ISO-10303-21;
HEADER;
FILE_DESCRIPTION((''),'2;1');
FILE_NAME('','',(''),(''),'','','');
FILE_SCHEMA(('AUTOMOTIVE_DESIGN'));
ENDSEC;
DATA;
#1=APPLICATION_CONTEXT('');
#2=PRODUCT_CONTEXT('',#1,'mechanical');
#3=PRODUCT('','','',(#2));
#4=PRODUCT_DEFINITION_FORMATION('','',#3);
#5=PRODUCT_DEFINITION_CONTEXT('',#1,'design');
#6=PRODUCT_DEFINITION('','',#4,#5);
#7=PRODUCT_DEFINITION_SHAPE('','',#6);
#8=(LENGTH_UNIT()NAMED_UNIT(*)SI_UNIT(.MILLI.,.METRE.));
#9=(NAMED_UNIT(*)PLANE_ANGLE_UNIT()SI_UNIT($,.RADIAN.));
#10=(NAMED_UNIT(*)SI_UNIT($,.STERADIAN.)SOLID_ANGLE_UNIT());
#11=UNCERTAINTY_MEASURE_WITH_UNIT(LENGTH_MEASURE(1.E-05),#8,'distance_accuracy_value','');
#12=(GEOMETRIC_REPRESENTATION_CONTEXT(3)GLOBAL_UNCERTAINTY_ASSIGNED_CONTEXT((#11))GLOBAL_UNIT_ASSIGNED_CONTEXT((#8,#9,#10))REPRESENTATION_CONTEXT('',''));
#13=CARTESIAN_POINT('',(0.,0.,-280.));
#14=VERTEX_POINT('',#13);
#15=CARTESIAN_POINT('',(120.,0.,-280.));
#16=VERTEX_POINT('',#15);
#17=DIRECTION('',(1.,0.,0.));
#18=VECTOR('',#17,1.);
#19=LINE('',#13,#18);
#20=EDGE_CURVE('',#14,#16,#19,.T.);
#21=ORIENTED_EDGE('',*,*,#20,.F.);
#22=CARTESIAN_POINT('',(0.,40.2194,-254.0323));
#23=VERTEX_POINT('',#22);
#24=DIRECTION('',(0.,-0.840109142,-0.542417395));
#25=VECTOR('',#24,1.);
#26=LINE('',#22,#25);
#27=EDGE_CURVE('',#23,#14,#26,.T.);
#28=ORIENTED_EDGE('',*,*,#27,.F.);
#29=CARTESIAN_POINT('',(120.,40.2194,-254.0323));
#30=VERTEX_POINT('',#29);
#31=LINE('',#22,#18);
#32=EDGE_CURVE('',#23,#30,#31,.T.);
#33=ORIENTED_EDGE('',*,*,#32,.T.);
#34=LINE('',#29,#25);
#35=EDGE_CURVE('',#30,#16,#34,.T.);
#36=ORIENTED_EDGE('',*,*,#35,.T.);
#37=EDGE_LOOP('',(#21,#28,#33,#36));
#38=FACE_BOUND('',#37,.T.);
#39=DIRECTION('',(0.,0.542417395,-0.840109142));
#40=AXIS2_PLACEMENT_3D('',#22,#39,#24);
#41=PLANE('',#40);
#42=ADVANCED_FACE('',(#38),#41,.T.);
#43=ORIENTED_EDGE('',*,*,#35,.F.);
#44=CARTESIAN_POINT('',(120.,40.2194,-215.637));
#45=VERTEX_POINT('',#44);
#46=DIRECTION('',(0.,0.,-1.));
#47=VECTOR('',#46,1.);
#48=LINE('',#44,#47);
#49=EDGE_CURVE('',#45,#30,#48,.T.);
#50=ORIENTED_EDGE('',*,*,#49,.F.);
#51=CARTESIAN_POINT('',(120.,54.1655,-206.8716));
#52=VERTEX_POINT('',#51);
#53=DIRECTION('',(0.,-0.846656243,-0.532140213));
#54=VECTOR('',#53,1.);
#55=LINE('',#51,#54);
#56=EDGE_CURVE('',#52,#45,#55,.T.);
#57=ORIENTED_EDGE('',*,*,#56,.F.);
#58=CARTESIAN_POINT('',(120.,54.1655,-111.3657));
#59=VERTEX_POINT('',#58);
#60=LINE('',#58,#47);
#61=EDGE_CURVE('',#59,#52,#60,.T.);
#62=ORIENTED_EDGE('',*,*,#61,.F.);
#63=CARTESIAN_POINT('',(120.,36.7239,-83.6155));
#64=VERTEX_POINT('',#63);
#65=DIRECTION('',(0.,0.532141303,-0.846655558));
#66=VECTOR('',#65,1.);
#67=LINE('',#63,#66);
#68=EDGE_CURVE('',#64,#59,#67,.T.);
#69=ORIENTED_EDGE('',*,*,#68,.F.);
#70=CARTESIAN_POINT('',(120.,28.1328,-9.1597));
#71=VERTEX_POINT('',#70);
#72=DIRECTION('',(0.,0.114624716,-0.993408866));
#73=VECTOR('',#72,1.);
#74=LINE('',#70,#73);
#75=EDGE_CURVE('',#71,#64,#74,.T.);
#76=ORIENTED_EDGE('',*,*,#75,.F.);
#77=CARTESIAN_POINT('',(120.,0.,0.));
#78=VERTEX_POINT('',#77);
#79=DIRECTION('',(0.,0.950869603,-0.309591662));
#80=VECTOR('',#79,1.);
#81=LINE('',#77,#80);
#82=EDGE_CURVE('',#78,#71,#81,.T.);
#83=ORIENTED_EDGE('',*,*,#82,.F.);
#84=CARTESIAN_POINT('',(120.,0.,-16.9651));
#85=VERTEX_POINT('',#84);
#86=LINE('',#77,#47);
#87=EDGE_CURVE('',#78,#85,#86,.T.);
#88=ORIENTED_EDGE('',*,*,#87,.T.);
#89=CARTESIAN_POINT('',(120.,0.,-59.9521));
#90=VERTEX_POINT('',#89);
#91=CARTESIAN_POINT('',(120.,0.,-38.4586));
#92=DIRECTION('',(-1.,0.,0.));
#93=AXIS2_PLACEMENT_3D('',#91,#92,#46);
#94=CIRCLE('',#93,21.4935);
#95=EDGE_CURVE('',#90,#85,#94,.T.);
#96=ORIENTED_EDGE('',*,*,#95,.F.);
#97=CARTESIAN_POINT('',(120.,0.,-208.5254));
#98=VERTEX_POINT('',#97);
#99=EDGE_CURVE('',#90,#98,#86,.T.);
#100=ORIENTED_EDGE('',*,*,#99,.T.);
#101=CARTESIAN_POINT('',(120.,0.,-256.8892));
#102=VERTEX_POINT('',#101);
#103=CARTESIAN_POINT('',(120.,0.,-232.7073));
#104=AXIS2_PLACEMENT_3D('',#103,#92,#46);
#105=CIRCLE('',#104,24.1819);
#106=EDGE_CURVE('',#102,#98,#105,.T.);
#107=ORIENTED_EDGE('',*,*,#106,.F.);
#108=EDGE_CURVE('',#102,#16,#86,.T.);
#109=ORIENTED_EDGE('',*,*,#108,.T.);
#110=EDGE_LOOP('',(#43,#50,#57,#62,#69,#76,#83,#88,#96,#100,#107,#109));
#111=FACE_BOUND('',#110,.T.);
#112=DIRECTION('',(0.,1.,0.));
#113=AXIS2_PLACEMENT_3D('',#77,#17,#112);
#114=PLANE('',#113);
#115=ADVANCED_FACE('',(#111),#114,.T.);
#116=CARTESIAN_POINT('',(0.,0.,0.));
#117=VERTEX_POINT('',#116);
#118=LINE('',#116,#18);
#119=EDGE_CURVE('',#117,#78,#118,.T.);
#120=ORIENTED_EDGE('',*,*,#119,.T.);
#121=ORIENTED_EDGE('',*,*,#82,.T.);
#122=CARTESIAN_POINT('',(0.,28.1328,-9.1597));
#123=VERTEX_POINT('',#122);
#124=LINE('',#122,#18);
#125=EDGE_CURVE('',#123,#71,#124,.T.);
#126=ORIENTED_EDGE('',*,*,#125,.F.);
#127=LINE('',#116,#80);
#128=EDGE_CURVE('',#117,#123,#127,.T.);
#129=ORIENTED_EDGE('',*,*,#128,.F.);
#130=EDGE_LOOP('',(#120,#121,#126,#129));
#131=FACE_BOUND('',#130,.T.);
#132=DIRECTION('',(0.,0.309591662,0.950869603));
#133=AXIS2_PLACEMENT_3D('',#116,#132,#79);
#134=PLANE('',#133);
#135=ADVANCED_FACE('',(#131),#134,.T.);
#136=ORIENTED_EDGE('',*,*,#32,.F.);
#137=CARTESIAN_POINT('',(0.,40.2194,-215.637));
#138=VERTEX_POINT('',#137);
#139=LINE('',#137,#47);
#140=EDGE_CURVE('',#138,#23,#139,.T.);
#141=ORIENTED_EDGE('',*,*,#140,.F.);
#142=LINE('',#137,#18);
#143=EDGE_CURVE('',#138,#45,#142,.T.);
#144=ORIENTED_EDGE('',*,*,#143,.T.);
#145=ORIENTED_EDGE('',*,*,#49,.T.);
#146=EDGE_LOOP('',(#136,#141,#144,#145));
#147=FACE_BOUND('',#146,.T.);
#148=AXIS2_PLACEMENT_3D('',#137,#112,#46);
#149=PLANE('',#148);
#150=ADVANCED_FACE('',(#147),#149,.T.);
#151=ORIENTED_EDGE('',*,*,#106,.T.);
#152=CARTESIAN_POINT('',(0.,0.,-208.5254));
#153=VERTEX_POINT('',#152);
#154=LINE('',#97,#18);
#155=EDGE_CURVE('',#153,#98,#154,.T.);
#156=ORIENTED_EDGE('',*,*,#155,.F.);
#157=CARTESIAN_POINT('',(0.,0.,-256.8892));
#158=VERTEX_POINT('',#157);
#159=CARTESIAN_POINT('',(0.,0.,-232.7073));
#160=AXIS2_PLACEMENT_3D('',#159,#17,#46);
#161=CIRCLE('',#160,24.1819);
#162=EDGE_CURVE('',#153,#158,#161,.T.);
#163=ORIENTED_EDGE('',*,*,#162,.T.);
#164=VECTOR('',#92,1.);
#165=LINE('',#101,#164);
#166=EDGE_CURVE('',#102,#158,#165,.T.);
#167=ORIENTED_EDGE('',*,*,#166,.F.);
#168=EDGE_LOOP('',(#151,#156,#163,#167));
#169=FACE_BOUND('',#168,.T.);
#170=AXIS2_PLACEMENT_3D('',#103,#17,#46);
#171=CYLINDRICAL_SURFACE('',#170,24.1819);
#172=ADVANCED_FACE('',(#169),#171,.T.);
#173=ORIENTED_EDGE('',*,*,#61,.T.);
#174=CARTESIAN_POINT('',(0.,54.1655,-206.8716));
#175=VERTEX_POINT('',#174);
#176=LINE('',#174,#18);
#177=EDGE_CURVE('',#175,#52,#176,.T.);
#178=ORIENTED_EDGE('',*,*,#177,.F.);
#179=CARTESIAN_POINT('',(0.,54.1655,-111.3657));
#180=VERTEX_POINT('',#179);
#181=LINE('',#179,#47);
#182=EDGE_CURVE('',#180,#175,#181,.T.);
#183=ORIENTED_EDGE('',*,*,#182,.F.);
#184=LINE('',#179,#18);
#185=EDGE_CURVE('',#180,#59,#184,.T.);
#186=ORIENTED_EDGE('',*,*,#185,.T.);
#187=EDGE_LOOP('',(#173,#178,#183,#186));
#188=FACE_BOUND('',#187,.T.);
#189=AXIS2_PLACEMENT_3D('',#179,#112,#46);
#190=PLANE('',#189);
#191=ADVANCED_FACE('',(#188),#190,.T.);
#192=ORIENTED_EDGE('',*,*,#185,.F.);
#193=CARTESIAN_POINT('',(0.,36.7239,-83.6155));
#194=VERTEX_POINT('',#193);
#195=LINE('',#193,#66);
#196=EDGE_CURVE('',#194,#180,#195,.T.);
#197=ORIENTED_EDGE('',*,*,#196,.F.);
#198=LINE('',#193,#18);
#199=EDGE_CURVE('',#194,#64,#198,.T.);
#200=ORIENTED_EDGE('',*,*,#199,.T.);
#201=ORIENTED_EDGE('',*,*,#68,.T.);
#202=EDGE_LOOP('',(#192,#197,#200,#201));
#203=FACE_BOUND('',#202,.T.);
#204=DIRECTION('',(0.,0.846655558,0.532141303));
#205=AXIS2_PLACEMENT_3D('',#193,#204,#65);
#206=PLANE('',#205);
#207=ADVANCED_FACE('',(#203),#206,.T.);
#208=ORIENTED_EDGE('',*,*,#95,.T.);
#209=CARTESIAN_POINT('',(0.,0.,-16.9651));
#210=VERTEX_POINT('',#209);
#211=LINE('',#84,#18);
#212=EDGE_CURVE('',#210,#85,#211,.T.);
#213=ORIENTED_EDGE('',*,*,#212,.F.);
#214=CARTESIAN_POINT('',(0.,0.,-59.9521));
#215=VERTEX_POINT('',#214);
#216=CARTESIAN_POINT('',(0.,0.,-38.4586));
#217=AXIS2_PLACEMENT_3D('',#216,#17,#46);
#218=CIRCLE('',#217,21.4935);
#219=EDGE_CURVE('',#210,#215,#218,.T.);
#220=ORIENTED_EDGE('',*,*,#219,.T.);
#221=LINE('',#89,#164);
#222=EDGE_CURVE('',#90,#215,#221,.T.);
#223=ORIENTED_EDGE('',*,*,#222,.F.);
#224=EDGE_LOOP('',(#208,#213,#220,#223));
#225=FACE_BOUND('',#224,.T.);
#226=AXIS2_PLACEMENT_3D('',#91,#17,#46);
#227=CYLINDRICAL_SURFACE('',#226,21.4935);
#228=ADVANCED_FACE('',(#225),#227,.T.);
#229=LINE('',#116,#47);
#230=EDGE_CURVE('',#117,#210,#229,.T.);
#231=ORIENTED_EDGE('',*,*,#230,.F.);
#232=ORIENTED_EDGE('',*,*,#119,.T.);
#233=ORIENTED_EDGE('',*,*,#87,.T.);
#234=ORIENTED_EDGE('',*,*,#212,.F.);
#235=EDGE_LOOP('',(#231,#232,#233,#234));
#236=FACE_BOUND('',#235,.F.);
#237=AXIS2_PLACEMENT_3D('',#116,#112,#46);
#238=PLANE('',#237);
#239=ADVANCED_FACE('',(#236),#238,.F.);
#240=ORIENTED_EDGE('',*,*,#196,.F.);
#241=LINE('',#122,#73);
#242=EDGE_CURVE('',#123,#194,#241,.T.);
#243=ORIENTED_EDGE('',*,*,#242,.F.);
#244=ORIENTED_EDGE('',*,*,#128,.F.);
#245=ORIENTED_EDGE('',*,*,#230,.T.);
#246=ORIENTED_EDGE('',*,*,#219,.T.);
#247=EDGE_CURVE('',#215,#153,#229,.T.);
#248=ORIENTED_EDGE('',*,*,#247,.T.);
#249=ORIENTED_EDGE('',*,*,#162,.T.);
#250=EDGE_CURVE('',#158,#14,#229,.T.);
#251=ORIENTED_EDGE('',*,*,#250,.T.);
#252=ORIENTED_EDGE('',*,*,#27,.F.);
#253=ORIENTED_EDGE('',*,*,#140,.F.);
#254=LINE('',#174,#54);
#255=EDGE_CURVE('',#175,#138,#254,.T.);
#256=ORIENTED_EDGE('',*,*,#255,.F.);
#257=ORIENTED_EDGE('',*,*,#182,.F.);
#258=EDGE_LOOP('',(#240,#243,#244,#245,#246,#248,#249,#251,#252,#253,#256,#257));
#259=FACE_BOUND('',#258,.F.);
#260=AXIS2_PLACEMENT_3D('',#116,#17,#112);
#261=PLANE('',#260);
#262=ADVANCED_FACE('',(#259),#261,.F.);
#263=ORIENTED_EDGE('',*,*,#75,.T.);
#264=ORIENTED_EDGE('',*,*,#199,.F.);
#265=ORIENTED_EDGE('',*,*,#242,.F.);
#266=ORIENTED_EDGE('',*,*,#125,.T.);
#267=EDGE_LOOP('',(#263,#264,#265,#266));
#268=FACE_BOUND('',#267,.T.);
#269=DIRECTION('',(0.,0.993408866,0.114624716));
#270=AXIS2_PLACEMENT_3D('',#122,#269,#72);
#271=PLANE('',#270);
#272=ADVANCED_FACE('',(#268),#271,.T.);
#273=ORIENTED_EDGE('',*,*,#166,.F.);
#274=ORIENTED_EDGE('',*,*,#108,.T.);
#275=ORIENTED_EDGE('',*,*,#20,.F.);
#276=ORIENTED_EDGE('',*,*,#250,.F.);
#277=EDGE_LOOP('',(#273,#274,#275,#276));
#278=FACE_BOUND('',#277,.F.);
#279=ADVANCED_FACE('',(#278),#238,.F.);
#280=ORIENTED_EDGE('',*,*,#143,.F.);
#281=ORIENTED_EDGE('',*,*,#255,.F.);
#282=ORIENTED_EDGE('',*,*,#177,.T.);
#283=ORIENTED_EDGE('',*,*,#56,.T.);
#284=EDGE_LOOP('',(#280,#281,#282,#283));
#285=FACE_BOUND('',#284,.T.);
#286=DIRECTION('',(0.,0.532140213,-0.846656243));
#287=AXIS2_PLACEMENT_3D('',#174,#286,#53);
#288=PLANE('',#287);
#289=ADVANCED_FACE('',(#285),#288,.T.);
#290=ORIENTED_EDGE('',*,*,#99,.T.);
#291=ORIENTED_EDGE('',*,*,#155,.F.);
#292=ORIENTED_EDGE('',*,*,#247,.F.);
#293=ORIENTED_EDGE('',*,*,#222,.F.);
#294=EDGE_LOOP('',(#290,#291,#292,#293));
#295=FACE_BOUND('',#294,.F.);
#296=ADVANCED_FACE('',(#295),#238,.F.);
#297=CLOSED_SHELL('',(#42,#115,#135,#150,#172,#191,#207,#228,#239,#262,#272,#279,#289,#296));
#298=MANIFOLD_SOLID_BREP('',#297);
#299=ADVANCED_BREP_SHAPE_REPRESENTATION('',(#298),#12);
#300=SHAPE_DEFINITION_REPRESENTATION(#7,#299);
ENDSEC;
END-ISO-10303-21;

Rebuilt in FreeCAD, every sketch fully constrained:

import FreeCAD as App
import Part
import Sketcher
Q = App.Units.Quantity


def add_polygon(sketch, points):
    """Adds a closed chain of lines whose ends are joined by coincident constraints."""
    first, n = sketch.GeometryCount, len(points)
    for a, b in zip(points, points[1:] + points[:1]):
        sketch.addGeometry(Part.LineSegment(App.Vector(*a, 0), App.Vector(*b, 0)), False)
    for i in range(n):
        sketch.addConstraint(Sketcher.Constraint("Coincident", first + i, 2, first + (i + 1) % n, 1))

doc = App.newDocument("Part")
params = doc.addObject("Spreadsheet::Sheet", "Params")
for row, (alias, value) in enumerate([
    ("sketch1_height", "280 mm"),
    ("pad1_length", "120 mm"),
    ("pad2_length", "120 mm"),
], start=1):
    params.set(f"A{row}", alias)
    params.set(f"B{row}", "=" + value)
    params.setAlias(f"B{row}", alias)

body = doc.addObject("PartDesign::Body", "Body")

# Sketch on YZ plane
sketch1 = body.newObject("Sketcher::SketchObject", "Sketch")
sketch1.AttachmentSupport = (doc.getObject("YZ_Plane"), [""])
sketch1.MapMode = "FlatFace"
add_polygon(sketch1, [(28, -9), (0, 0), (0, -280), (40, -254), (40, -216), (54, -207), (54, -111), (37, -84)])  # lines 0-7
sketch1.addConstraint(Sketcher.Constraint("Vertical", 1))
sketch1.addConstraint(Sketcher.Constraint("Vertical", 3))
sketch1.addConstraint(Sketcher.Constraint("Vertical", 5))
sketch1.addConstraint(Sketcher.Constraint("Coincident", 0, 2, -1, 1))
sketch1.addConstraint(Sketcher.Constraint("Perpendicular", 4, 6))
sketch1.addConstraint(Sketcher.Constraint("DistanceY", 1, 2, 1, 1, 280.0))
sketch1.addConstraint(Sketcher.Constraint("Angle", 4, Q("32.1502 deg")))
sketch1.addConstraint(Sketcher.Constraint("DistanceY", 5, 1, 5, 2, 95.506))
sketch1.addConstraint(Sketcher.Constraint("Distance", 2, 47.874))
sketch1.addConstraint(Sketcher.Constraint("Distance", 4, 16.472))
sketch1.addConstraint(Sketcher.Constraint("DistanceY", 3, 1, 3, 2, 38.3953))
sketch1.addConstraint(Sketcher.Constraint("DistanceY", 3, 2, -1, 1, 215.637))
sketch1.addConstraint(Sketcher.Constraint("DistanceX", -1, 1, 6, 2, 36.724))
sketch1.addConstraint(Sketcher.Constraint("DistanceX", 7, 2, 6, 2, 8.591))
sketch1.addConstraint(Sketcher.Constraint("DistanceY", 5, 2, 7, 2, 102.206))
sketch1.setExpression("Constraints[13]", "Params.sketch1_height")
pad1 = body.newObject("PartDesign::Pad", "Pad")
pad1.Profile = sketch1
pad1.setExpression("Length", "Params.pad1_length")

# Sketch on YZ plane
sketch2 = body.newObject("Sketcher::SketchObject", "Sketch001")
sketch2.AttachmentSupport = (doc.getObject("YZ_Plane"), [""])
sketch2.MapMode = "FlatFace"
sketch2.AttachmentOffset = App.Placement(App.Vector(0, 0, 120), App.Rotation())
sketch2.addGeometry(Part.Circle(App.Vector(0, -38, 0), App.Vector(0, 0, 1), 21), False)
sketch2.addGeometry(Part.Circle(App.Vector(0, -233, 0), App.Vector(0, 0, 1), 24), False)
sketch2.addConstraint(Sketcher.Constraint("PointOnObject", 0, 3, -2))
sketch2.addConstraint(Sketcher.Constraint("PointOnObject", 1, 3, -2))
sketch2.addConstraint(Sketcher.Constraint("Diameter", 0, 42.987))
sketch2.addConstraint(Sketcher.Constraint("Diameter", 1, 48.3638))
sketch2.addConstraint(Sketcher.Constraint("DistanceY", 0, 3, -1, 1, 38.4586))
sketch2.addConstraint(Sketcher.Constraint("DistanceY", 1, 3, -1, 1, 232.7073))
pad2 = body.newObject("PartDesign::Pad", "Pad001")
pad2.Profile = sketch2
pad2.setExpression("Length", "Params.pad2_length")
pad2.Reversed = True

doc.recompute()
